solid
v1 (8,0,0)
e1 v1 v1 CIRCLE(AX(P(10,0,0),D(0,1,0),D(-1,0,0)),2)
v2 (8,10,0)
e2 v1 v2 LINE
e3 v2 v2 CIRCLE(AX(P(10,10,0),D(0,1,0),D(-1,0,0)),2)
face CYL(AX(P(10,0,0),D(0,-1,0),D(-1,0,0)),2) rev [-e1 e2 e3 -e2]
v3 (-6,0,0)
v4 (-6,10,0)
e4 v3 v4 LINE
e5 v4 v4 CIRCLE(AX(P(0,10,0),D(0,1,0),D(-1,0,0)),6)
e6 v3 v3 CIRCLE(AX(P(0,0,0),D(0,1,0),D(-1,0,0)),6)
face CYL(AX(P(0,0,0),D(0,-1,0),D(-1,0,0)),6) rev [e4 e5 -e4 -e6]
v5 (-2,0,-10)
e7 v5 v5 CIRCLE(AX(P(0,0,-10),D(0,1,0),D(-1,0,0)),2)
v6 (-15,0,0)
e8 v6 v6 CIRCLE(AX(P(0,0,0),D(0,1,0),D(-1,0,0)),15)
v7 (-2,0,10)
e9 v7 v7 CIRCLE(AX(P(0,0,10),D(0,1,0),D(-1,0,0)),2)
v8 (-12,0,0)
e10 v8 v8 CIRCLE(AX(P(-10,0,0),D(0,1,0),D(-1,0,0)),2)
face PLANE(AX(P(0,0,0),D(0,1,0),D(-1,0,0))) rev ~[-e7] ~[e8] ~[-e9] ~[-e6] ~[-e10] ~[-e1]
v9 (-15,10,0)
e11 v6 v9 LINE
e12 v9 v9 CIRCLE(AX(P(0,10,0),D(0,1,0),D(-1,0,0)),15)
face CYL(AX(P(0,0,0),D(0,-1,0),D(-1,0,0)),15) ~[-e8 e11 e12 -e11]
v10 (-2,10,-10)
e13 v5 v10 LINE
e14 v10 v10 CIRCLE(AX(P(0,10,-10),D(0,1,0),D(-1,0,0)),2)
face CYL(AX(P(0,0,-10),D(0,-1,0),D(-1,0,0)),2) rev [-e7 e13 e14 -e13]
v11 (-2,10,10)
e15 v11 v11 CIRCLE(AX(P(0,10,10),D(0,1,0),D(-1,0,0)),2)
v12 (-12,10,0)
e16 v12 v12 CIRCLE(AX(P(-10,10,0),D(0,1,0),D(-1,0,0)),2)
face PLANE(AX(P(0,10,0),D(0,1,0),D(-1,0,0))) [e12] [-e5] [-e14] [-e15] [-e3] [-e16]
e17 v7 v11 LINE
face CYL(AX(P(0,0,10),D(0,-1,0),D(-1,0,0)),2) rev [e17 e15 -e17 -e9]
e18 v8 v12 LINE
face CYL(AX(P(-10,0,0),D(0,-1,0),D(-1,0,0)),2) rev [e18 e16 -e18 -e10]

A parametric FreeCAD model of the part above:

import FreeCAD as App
import Part
import Sketcher
from FreeCAD import Vector

doc = App.newDocument("Part")
body = doc.addObject("PartDesign::Body", "Body")

sketch1 = doc.addObject("Sketcher::SketchObject", "Sketch")
body.addObject(sketch1)
sketch1.AttachmentSupport = (doc.XZ_Plane, [""])
sketch1.MapMode = "FlatFace"
sketch1.addGeometry([
    Part.Circle(Vector(0, 0, 0), Vector(0, 0, 1), 15),
    Part.Circle(Vector(0, -10, 0), Vector(0, 0, 1), 2),
    Part.Circle(Vector(10, 0, 0), Vector(0, 0, 1), 2),
    Part.Circle(Vector(0, 0, 0), Vector(0, 0, 1), 6),
    Part.Circle(Vector(-10, 0, 0), Vector(0, 0, 1), 2),
    Part.Circle(Vector(0, 10, 0), Vector(0, 0, 1), 2),
], False)
sketch1.addConstraint([
    Sketcher.Constraint("Coincident", 0, 3, -1, 1),
    Sketcher.Constraint("Coincident", 3, 3, -1, 1),
    Sketcher.Constraint("Equal", 1, 2),
    Sketcher.Constraint("Equal", 2, 4),
    Sketcher.Constraint("Equal", 4, 5),
    Sketcher.Constraint("Symmetric", 2, 3, 4, 3, -1, 1),
    Sketcher.Constraint("Symmetric", 1, 3, 5, 3, -1, 1),
    Sketcher.Constraint("PointOnObject", 1, 3, -2),
    Sketcher.Constraint("PointOnObject", 2, 3, -1),
    Sketcher.Constraint("Diameter", 0, 30.0),
    Sketcher.Constraint("Diameter", 1, 4.0),
    Sketcher.Constraint("Diameter", 3, 12.0),
    Sketcher.Constraint("DistanceY", 1, 3, -1, 1, 10.0),
    Sketcher.Constraint("DistanceX", -1, 1, 2, 3, 10.0),
])
pad1 = doc.addObject("PartDesign::Pad", "Pad")
body.addObject(pad1)
pad1.Profile = sketch1
pad1.Length = 10
pad1.Reversed = True

doc.recompute()
